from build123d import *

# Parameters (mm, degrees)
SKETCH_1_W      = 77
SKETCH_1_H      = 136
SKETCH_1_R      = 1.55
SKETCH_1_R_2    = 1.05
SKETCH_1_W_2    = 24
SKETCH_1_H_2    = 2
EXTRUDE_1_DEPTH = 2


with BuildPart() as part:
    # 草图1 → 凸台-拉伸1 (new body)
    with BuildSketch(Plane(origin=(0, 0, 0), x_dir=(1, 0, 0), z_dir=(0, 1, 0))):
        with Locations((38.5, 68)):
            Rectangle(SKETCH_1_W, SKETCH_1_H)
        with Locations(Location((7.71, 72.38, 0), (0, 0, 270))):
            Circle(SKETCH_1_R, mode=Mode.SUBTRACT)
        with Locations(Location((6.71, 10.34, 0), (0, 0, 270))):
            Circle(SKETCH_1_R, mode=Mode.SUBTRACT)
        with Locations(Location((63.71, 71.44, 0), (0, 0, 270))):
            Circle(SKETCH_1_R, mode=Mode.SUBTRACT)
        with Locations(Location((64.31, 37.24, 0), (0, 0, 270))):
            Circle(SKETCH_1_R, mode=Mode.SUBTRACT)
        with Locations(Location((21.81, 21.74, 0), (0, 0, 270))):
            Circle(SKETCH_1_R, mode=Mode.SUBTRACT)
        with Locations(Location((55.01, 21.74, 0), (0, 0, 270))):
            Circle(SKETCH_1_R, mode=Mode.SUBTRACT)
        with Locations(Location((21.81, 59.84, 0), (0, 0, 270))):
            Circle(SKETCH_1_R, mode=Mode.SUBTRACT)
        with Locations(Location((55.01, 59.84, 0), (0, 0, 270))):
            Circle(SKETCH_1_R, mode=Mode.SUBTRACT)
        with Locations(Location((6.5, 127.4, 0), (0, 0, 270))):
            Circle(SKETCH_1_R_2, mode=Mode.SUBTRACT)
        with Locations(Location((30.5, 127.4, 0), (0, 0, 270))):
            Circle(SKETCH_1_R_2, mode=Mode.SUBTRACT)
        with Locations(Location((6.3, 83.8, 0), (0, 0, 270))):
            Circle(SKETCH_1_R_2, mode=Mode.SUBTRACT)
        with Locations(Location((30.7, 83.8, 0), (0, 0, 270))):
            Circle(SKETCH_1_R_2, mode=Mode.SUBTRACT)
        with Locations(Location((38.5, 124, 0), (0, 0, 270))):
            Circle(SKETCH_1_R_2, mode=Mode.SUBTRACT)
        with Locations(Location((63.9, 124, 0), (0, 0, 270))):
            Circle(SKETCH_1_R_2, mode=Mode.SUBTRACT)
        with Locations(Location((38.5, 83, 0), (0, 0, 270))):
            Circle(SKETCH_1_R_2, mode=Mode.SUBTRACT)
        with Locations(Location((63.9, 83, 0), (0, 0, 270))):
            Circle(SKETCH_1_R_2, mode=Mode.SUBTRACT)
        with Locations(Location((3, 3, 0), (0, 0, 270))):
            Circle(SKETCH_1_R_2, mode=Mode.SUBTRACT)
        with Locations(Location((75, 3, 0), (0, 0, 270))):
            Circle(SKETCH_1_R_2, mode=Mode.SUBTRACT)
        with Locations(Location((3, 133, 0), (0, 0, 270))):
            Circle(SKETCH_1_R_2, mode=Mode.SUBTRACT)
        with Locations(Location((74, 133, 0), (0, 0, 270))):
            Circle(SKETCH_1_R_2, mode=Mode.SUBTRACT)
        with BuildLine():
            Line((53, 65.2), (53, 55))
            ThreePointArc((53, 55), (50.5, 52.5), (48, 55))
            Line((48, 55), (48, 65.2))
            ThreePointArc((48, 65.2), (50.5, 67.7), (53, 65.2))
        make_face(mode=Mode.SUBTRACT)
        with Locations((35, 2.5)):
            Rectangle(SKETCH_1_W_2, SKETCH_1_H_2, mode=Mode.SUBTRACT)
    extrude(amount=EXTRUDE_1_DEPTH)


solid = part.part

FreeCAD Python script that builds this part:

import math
import FreeCAD as App
import Part
import Sketcher
from FreeCAD import Vector
Q = App.Units.Quantity

doc = App.newDocument("Part")
params = doc.addObject("Spreadsheet::Sheet", "Params")
for row, (alias, value) in enumerate([
    ("sketch1_diameter", "2.1 mm"),
    ("sketch1_diameter2", "3.1 mm"),
    ("sketch1_radius", "2.5 mm"),
    ("sketch1_width", "77 mm"),
    ("sketch1_width2", "24 mm"),
    ("pad1_length", "2 mm"),
], start=1):
    params.set(f"A{row}", alias)
    params.set(f"B{row}", "=" + value)
    params.setAlias(f"B{row}", alias)

body = doc.addObject("PartDesign::Body", "Body")

sketch1 = body.newObject("Sketcher::SketchObject", "Sketch")
sketch1.AttachmentSupport = (doc.getObject("XZ_Plane"), [""])
sketch1.MapMode = "FlatFace"
sketch1.addGeometry([
    Part.LineSegment(Vector(0, -136, 0), Vector(0, 0, 0)),
    Part.LineSegment(Vector(0, 0, 0), Vector(77, 0, 0)),
    Part.LineSegment(Vector(77, 0, 0), Vector(77, -136, 0)),
    Part.LineSegment(Vector(77, -136, 0), Vector(0, -136, 0)),
    Part.Circle(Vector(3, -3, 0), Vector(0, 0, 1), 1.1),
    Part.Circle(Vector(6.7, -10.3, 0), Vector(0, 0, 1), 1.6),
    Part.LineSegment(Vector(47, -1.5, 0), Vector(23, -1.5, 0)),
    Part.LineSegment(Vector(23, -1.5, 0), Vector(23, -3.5, 0)),
    Part.LineSegment(Vector(23, -3.5, 0), Vector(47, -3.5, 0)),
    Part.LineSegment(Vector(47, -3.5, 0), Vector(47, -1.5, 0)),
    Part.Circle(Vector(21.8, -21.7, 0), Vector(0, 0, 1), 1.6),
    Part.Circle(Vector(21.8, -59.8, 0), Vector(0, 0, 1), 1.6),
    Part.Circle(Vector(55, -21.7, 0), Vector(0, 0, 1), 1.6),
    Part.Circle(Vector(75, -3, 0), Vector(0, 0, 1), 1.1),
    Part.ArcOfCircle(Part.Circle(Vector(50.5, -65.2, 0), Vector(0, 0, 1), 2.5), math.radians(180), math.radians(360)),
    Part.LineSegment(Vector(53, -65.2, 0), Vector(53, -55, 0)),
    Part.ArcOfCircle(Part.Circle(Vector(50.5, -55, 0), Vector(0, 0, 1), 2.5), math.radians(0), math.radians(180)),
    Part.LineSegment(Vector(48, -55, 0), Vector(48, -65.2, 0)),
    Part.Circle(Vector(55, -59.8, 0), Vector(0, 0, 1), 1.6),
    Part.Circle(Vector(64.3, -37.2, 0), Vector(0, 0, 1), 1.6),
    Part.Circle(Vector(7.7, -72.4, 0), Vector(0, 0, 1), 1.6),
    Part.Circle(Vector(6.3, -83.8, 0), Vector(0, 0, 1), 1.1),
    Part.Circle(Vector(30.7, -83.8, 0), Vector(0, 0, 1), 1.1),
    Part.Circle(Vector(38.5, -83, 0), Vector(0, 0, 1), 1.1),
    Part.Circle(Vector(6.5, -127.4, 0), Vector(0, 0, 1), 1.1),
    Part.Circle(Vector(3, -133, 0), Vector(0, 0, 1), 1.1),
    Part.Circle(Vector(38.5, -124, 0), Vector(0, 0, 1), 1.1),
    Part.Circle(Vector(30.5, -127.4, 0), Vector(0, 0, 1), 1.1),
    Part.Circle(Vector(63.7, -71.4, 0), Vector(0, 0, 1), 1.6),
    Part.Circle(Vector(63.9, -83, 0), Vector(0, 0, 1), 1.1),
    Part.Circle(Vector(63.9, -124, 0), Vector(0, 0, 1), 1.1),
    Part.Circle(Vector(74, -133, 0), Vector(0, 0, 1), 1.1),
], False)
sketch1.addConstraint([
    Sketcher.Constraint("Coincident", 0, 2, 1, 1),
    Sketcher.Constraint("Coincident", 1, 2, 2, 1),
    Sketcher.Constraint("Coincident", 2, 2, 3, 1),
    Sketcher.Constraint("Coincident", 3, 2, 0, 1),
    Sketcher.Constraint("Coincident", 6, 2, 7, 1),
    Sketcher.Constraint("Coincident", 7, 2, 8, 1),
    Sketcher.Constraint("Coincident", 8, 2, 9, 1),
    Sketcher.Constraint("Coincident", 9, 2, 6, 1),
    Sketcher.Constraint("Tangent", 14, 2, 15, 1),
    Sketcher.Constraint("Tangent", 15, 2, 16, 1),
    Sketcher.Constraint("Tangent", 16, 2, 17, 1),
    Sketcher.Constraint("Tangent", 17, 2, 14, 1),
    Sketcher.Constraint("Vertical", 0),
    Sketcher.Constraint("Horizontal", 1),
    Sketcher.Constraint("Vertical", 2),
    Sketcher.Constraint("Horizontal", 3),
    Sketcher.Constraint("Horizontal", 6),
    Sketcher.Constraint("Vertical", 7),
    Sketcher.Constraint("Horizontal", 8),
    Sketcher.Constraint("Vertical", 9),
    Sketcher.Constraint("Vertical", 15),
    Sketcher.Constraint("Vertical", 17),
    Sketcher.Constraint("Coincident", 0, 2, -1, 1),
    Sketcher.Constraint("Equal", 5, 10),
    Sketcher.Constraint("Equal", 10, 11),
    Sketcher.Constraint("Equal", 11, 12),
    Sketcher.Constraint("Equal", 4, 13),
    Sketcher.Constraint("Equal", 12, 18),
    Sketcher.Constraint("Equal", 18, 19),
    Sketcher.Constraint("Equal", 19, 20),
    Sketcher.Constraint("Equal", 13, 21),
    Sketcher.Constraint("Equal", 21, 22),
    Sketcher.Constraint("Equal", 22, 23),
    Sketcher.Constraint("Equal", 23, 24),
    Sketcher.Constraint("Equal", 24, 25),
    Sketcher.Constraint("Equal", 25, 26),
    Sketcher.Constraint("Equal", 26, 27),
    Sketcher.Constraint("Equal", 20, 28),
    Sketcher.Constraint("Equal", 27, 29),
    Sketcher.Constraint("Equal", 29, 30),
    Sketcher.Constraint("Equal", 30, 31),
    Sketcher.Constraint("Horizontal", 10, 3, 12, 3),
    Sketcher.Constraint("Horizontal", 4, 3, 13, 3),
    Sketcher.Constraint("Horizontal", 11, 3, 18, 3),
    Sketcher.Constraint("Horizontal", 21, 3, 22, 3),
    Sketcher.Constraint("Horizontal", 24, 3, 27, 3),
    Sketcher.Constraint("Horizontal", 23, 3, 29, 3),
    Sketcher.Constraint("Horizontal", 26, 3, 30, 3),
    Sketcher.Constraint("Horizontal", 25, 3, 31, 3),
    Sketcher.Constraint("Vertical", 10, 3, 11, 3),
    Sketcher.Constraint("Vertical", 12, 3, 18, 3),
    Sketcher.Constraint("Vertical", 4, 3, 25, 3),
    Sketcher.Constraint("Vertical", 23, 3, 26, 3),
    Sketcher.Constraint("Vertical", 29, 3, 30, 3),
    Sketcher.Constraint("Diameter", 4, Q("2.1 mm")),
    Sketcher.Constraint("Diameter", 5, Q("3.1 mm")),
    Sketcher.Constraint("Radius", 14, Q("2.5 mm")),
    Sketcher.Constraint("DistanceX", 1, 1, 1, 2, Q("77 mm")),
    Sketcher.Constraint("DistanceX", 6, 2, 6, 1, Q("24 mm")),
    Sketcher.Constraint("DistanceY", 0, 1, 0, 2, Q("136 mm")),
    Sketcher.Constraint("DistanceY", 7, 2, 7, 1, Q("2 mm")),
    Sketcher.Constraint("DistanceY", 15, 1, 15, 2, Q("10.2 mm")),
    Sketcher.Constraint("DistanceX", -1, 1, 4, 3, Q("3 mm")),
    Sketcher.Constraint("DistanceY", 4, 3, -1, 1, Q("3 mm")),
    Sketcher.Constraint("DistanceX", -1, 1, 13, 3, Q("75 mm")),
    Sketcher.Constraint("DistanceY", 16, 3, -1, 1, Q("55 mm")),
    Sketcher.Constraint("DistanceY", 23, 3, -1, 1, Q("83 mm")),
    Sketcher.Constraint("DistanceY", 25, 3, -1, 1, Q("133 mm")),
    Sketcher.Constraint("DistanceY", 26, 3, -1, 1, Q("124 mm")),
    Sketcher.Constraint("DistanceX", -1, 1, 31, 3, Q("74 mm")),
    Sketcher.Constraint("DistanceX", -1, 1, 6, 2, Q("23 mm")),
    Sketcher.Constraint("DistanceX", -1, 1, 14, 2, Q("53 mm")),
    Sketcher.Constraint("DistanceX", 23, 3, 14, 3, Q("12 mm")),
    Sketcher.Constraint("DistanceX", 24, 3, 23, 3, Q("32 mm")),
    Sketcher.Constraint("DistanceX", 27, 3, 26, 3, Q("8 mm")),
    Sketcher.Constraint("DistanceX", -1, 1, 21, 3, Q("6.3 mm")),
    Sketcher.Constraint("DistanceY", 21, 3, -1, 1, Q("83.8 mm")),
    Sketcher.Constraint("DistanceX", -1, 1, 22, 3, Q("30.7 mm")),
    Sketcher.Constraint("DistanceY", 24, 3, -1, 1, Q("127.4 mm")),
    Sketcher.Constraint("DistanceX", -1, 1, 29, 3, Q("63.9 mm")),
    Sketcher.Constraint("DistanceY", 6, 2, -1, 1, Q("1.5 mm")),
    Sketcher.Constraint("DistanceX", 5, 3, 10, 3, Q("15.1 mm")),
    Sketcher.Constraint("DistanceY", 10, 3, 5, 3, Q("11.4 mm")),
    Sketcher.Constraint("DistanceY", 11, 3, 10, 3, Q("38.1 mm")),
    Sketcher.Constraint("DistanceX", 10, 3, 12, 3, Q("33.2 mm")),
    Sketcher.Constraint("DistanceX", 12, 3, 19, 3, Q("9.3 mm")),
    Sketcher.Constraint("DistanceY", 19, 3, 12, 3, Q("15.5 mm")),
    Sketcher.Constraint("DistanceX", 20, 3, 11, 3, Q("14.1 mm")),
    Sketcher.Constraint("DistanceX", 18, 3, 28, 3, Q("8.7 mm")),
    Sketcher.Constraint("DistanceY", 28, 3, 18, 3, Q("11.6 mm")),
    Sketcher.Constraint("DistanceX", -1, 1, 5, 3, Q("6.71 mm")),
    Sketcher.Constraint("DistanceY", 5, 3, -1, 1, Q("10.34 mm")),
    Sketcher.Constraint("DistanceY", 20, 3, -1, 1, Q("72.38 mm")),
])
sketch1.setExpression("Constraints[54]", "Params.sketch1_diameter")
sketch1.setExpression("Constraints[55]", "Params.sketch1_diameter2")
sketch1.setExpression("Constraints[56]", "Params.sketch1_radius")
sketch1.setExpression("Constraints[57]", "Params.sketch1_width")
sketch1.setExpression("Constraints[58]", "Params.sketch1_width2")
pad1 = body.newObject("PartDesign::Pad", "Pad")
pad1.Profile = sketch1
pad1.setExpression("Length", "Params.pad1_length")
pad1.Reversed = True

doc.recompute()
